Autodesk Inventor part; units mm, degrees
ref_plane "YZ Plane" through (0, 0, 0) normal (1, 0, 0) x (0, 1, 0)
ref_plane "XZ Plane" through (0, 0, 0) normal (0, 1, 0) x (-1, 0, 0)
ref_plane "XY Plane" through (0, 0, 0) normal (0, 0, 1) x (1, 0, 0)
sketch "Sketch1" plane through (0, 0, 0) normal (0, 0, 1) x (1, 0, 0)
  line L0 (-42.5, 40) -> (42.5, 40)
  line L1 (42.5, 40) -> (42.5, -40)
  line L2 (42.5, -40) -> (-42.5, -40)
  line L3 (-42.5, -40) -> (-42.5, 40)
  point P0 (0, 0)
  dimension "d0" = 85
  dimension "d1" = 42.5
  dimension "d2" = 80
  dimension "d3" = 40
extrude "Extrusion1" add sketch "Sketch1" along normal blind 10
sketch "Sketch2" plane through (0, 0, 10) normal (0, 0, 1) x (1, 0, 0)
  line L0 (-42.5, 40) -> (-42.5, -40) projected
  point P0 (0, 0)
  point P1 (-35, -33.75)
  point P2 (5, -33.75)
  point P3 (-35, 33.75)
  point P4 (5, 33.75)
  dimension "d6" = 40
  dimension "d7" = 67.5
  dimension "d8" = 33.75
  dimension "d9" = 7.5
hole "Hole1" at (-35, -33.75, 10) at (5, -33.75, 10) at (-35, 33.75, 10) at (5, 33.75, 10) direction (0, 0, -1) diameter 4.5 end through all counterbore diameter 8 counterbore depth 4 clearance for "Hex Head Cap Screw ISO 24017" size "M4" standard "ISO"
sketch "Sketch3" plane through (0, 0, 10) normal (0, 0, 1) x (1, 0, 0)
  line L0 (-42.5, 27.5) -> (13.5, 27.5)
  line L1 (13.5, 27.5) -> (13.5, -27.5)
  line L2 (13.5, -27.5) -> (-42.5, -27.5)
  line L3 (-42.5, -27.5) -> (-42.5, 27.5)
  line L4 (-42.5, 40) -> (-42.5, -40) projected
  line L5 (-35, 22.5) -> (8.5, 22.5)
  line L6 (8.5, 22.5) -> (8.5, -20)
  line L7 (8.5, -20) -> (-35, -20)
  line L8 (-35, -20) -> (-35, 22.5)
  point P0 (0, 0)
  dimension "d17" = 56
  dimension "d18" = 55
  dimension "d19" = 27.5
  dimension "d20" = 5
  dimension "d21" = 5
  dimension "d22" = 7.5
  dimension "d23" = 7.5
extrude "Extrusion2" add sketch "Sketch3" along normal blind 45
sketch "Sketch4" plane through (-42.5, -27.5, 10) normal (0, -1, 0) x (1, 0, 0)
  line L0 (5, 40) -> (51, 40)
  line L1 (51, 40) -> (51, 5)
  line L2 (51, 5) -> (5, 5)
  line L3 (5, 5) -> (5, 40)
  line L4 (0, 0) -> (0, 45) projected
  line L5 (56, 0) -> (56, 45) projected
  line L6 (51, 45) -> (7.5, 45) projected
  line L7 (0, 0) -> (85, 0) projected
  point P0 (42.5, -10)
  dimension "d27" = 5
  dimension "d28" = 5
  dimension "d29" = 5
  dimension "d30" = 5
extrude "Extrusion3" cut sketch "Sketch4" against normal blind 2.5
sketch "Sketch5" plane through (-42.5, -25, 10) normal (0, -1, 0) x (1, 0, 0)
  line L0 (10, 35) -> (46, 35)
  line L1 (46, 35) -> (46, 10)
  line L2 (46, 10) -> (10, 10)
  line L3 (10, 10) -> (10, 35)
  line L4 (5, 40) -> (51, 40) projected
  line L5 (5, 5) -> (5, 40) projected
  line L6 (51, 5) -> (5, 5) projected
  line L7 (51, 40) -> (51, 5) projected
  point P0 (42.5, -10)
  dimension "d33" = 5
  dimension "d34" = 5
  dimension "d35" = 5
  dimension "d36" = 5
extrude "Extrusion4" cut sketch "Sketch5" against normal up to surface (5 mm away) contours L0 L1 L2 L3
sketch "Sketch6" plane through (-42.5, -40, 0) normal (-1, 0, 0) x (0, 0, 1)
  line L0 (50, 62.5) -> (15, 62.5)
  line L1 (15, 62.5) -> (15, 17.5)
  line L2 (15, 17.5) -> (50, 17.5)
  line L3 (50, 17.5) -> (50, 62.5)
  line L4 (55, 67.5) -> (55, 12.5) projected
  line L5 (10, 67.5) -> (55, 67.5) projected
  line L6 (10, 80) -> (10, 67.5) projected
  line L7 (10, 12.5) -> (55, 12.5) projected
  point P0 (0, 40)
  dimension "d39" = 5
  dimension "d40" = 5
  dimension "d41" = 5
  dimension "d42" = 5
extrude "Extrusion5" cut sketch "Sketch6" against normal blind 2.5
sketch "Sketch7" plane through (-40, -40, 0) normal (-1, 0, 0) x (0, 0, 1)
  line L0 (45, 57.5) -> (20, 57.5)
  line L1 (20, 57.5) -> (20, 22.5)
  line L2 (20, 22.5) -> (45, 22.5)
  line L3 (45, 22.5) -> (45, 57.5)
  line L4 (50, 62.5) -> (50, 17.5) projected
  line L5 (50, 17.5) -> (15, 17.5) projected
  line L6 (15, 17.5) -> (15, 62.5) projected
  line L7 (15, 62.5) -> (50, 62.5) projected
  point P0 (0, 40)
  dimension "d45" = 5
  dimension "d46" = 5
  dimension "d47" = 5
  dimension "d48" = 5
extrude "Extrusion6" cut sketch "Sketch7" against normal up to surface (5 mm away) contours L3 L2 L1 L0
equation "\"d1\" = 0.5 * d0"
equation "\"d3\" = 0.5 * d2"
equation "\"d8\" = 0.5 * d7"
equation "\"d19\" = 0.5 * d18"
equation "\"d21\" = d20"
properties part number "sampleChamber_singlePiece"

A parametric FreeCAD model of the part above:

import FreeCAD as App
import Part
import Sketcher
from FreeCAD import Vector
Q = App.Units.Quantity

doc = App.newDocument("Part")
body = doc.addObject("PartDesign::Body", "Body")

sketch1 = body.newObject("Sketcher::SketchObject", "Sketch")
sketch1.AttachmentSupport = (doc.getObject("XY_Plane"), [""])
sketch1.MapMode = "FlatFace"
sketch1.addGeometry([
    Part.LineSegment(Vector(42, 40, 0), Vector(-42, 40, 0)),
    Part.LineSegment(Vector(-42, 40, 0), Vector(-42, -40, 0)),
    Part.LineSegment(Vector(-42, -40, 0), Vector(42, -40, 0)),
    Part.LineSegment(Vector(42, -40, 0), Vector(42, 40, 0)),
], False)
sketch1.addConstraint([
    Sketcher.Constraint("Coincident", 0, 2, 1, 1),
    Sketcher.Constraint("Coincident", 1, 2, 2, 1),
    Sketcher.Constraint("Coincident", 2, 2, 3, 1),
    Sketcher.Constraint("Coincident", 3, 2, 0, 1),
    Sketcher.Constraint("Horizontal", 0),
    Sketcher.Constraint("Vertical", 1),
    Sketcher.Constraint("Horizontal", 2),
    Sketcher.Constraint("Vertical", 3),
    Sketcher.Constraint("Symmetric", 0, 2, 2, 2, -1, 1),
    Sketcher.Constraint("DistanceX", 0, 2, 0, 1, Q("85 mm")),
    Sketcher.Constraint("DistanceY", 1, 2, 1, 1, Q("80 mm")),
])
pad1 = body.newObject("PartDesign::Pad", "Pad")
pad1.Profile = sketch1
pad1.Length = 10

sketch2 = body.newObject("Sketcher::SketchObject", "Sketch001")
sketch2.AttachmentSupport = (doc.getObject("XY_Plane"), [""])
sketch2.MapMode = "FlatFace"
sketch2.AttachmentOffset = App.Placement(Vector(0, 0, 10), App.Rotation())
sketch2.addGeometry([
    Part.Circle(Vector(-35, -33.8, 0), Vector(0, 0, 1), 2.2),
    Part.Circle(Vector(5, -33.8, 0), Vector(0, 0, 1), 2.2),
    Part.Circle(Vector(-35, 33.8, 0), Vector(0, 0, 1), 2.2),
    Part.Circle(Vector(5, 33.8, 0), Vector(0, 0, 1), 2.2),
], False)
sketch2.addConstraint([
    Sketcher.Constraint("Equal", 0, 1),
    Sketcher.Constraint("Equal", 1, 2),
    Sketcher.Constraint("Equal", 2, 3),
    Sketcher.Constraint("Symmetric", 0, 3, 2, 3, -1),
    Sketcher.Constraint("Symmetric", 1, 3, 3, 3, -1),
    Sketcher.Constraint("Horizontal", 0, 3, 1, 3),
    Sketcher.Constraint("Diameter", 0, Q("4.5 mm")),
    Sketcher.Constraint("DistanceX", 0, 3, -1, 1, Q("35 mm")),
    Sketcher.Constraint("DistanceX", -1, 1, 1, 3, Q("5 mm")),
    Sketcher.Constraint("DistanceY", 0, 3, 2, 3, Q("67.5 mm")),
])
doc.recompute()
hole = body.newObject("PartDesign::Hole", "Hole")
hole.Profile = sketch2
hole.ThreadType = "None"
hole.Diameter = 4.5
hole.DepthType = "ThroughAll"
hole.HoleCutType = "Counterbore"
hole.HoleCutDiameter = 8
hole.HoleCutDepth = 4

sketch3 = body.newObject("Sketcher::SketchObject", "Sketch002")
sketch3.AttachmentSupport = (doc.getObject("XY_Plane"), [""])
sketch3.MapMode = "FlatFace"
sketch3.AttachmentOffset = App.Placement(Vector(0, 0, 10), App.Rotation())
sketch3.addGeometry([
    Part.LineSegment(Vector(14, 28, 0), Vector(-42, 28, 0)),
    Part.LineSegment(Vector(-42, 28, 0), Vector(-42, -28, 0)),
    Part.LineSegment(Vector(-42, -28, 0), Vector(14, -28, 0)),
    Part.LineSegment(Vector(14, -28, 0), Vector(14, 28, 0)),
    Part.LineSegment(Vector(-35, -20, 0), Vector(-35, 22, 0)),
    Part.LineSegment(Vector(-35, 22, 0), Vector(8, 22, 0)),
    Part.LineSegment(Vector(8, 22, 0), Vector(8, -20, 0)),
    Part.LineSegment(Vector(8, -20, 0), Vector(-35, -20, 0)),
], False)
sketch3.addConstraint([
    Sketcher.Constraint("Coincident", 0, 2, 1, 1),
    Sketcher.Constraint("Coincident", 1, 2, 2, 1),
    Sketcher.Constraint("Coincident", 2, 2, 3, 1),
    Sketcher.Constraint("Coincident", 3, 2, 0, 1),
    Sketcher.Constraint("Coincident", 4, 2, 5, 1),
    Sketcher.Constraint("Coincident", 5, 2, 6, 1),
    Sketcher.Constraint("Coincident", 6, 2, 7, 1),
    Sketcher.Constraint("Coincident", 7, 2, 4, 1),
    Sketcher.Constraint("Horizontal", 0),
    Sketcher.Constraint("Vertical", 1),
    Sketcher.Constraint("Horizontal", 2),
    Sketcher.Constraint("Vertical", 3),
    Sketcher.Constraint("Vertical", 4),
    Sketcher.Constraint("Horizontal", 5),
    Sketcher.Constraint("Vertical", 6),
    Sketcher.Constraint("Horizontal", 7),
    Sketcher.Constraint("DistanceX", 0, 2, 0, 1, Q("56 mm")),
    Sketcher.Constraint("DistanceY", 1, 2, 1, 1, Q("55 mm")),
    Sketcher.Constraint("DistanceY", 4, 2, 0, 2, Q("5 mm")),
    Sketcher.Constraint("DistanceX", 5, 2, 3, 2, Q("5 mm")),
    Sketcher.Constraint("DistanceY", -1, 1, 0, 2, Q("27.5 mm")),
    Sketcher.Constraint("DistanceX", 0, 2, 4, 2, Q("7.5 mm")),
    Sketcher.Constraint("DistanceY", 2, 2, 6, 2, Q("7.5 mm")),
    Sketcher.Constraint("DistanceX", 4, 2, -1, 1, Q("35 mm")),
])
pad2 = body.newObject("PartDesign::Pad", "Pad001")
pad2.Profile = sketch3
pad2.Length = 45

sketch4 = body.newObject("Sketcher::SketchObject", "Sketch003")
sketch4.AttachmentSupport = (doc.getObject("XZ_Plane"), [""])
sketch4.MapMode = "FlatFace"
sketch4.AttachmentOffset = App.Placement(Vector(0, 0, 27.5), App.Rotation())
sketch4.addGeometry([
    Part.LineSegment(Vector(8, 50, 0), Vector(-38, 50, 0)),
    Part.LineSegment(Vector(-38, 50, 0), Vector(-38, 15, 0)),
    Part.LineSegment(Vector(-38, 15, 0), Vector(8, 15, 0)),
    Part.LineSegment(Vector(8, 15, 0), Vector(8, 50, 0)),
], False)
sketch4.addConstraint([
    Sketcher.Constraint("Coincident", 0, 2, 1, 1),
    Sketcher.Constraint("Coincident", 1, 2, 2, 1),
    Sketcher.Constraint("Coincident", 2, 2, 3, 1),
    Sketcher.Constraint("Coincident", 3, 2, 0, 1),
    Sketcher.Constraint("Horizontal", 0),
    Sketcher.Constraint("Vertical", 1),
    Sketcher.Constraint("Horizontal", 2),
    Sketcher.Constraint("Vertical", 3),
    Sketcher.Constraint("DistanceX", 0, 2, 0, 1, Q("46 mm")),
    Sketcher.Constraint("DistanceY", 1, 2, 1, 1, Q("35 mm")),
    Sketcher.Constraint("DistanceY", -1, 1, 0, 2, Q("50 mm")),
    Sketcher.Constraint("DistanceX", 0, 2, -1, 1, Q("37.5 mm")),
])
pocket1 = body.newObject("PartDesign::Pocket", "Pocket")
pocket1.Profile = sketch4
pocket1.Length = 2.5

sketch5 = body.newObject("Sketcher::SketchObject", "Sketch004")
sketch5.AttachmentSupport = (doc.getObject("XZ_Plane"), [""])
sketch5.MapMode = "FlatFace"
sketch5.AttachmentOffset = App.Placement(Vector(0, 0, 25), App.Rotation())
sketch5.addGeometry([
    Part.LineSegment(Vector(4, 45, 0), Vector(-32, 45, 0)),
    Part.LineSegment(Vector(-32, 45, 0), Vector(-32, 20, 0)),
    Part.LineSegment(Vector(-32, 20, 0), Vector(4, 20, 0)),
    Part.LineSegment(Vector(4, 20, 0), Vector(4, 45, 0)),
], False)
sketch5.addConstraint([
    Sketcher.Constraint("Coincident", 0, 2, 1, 1),
    Sketcher.Constraint("Coincident", 1, 2, 2, 1),
    Sketcher.Constraint("Coincident", 2, 2, 3, 1),
    Sketcher.Constraint("Coincident", 3, 2, 0, 1),
    Sketcher.Constraint("Horizontal", 0),
    Sketcher.Constraint("Vertical", 1),
    Sketcher.Constraint("Horizontal", 2),
    Sketcher.Constraint("Vertical", 3),
    Sketcher.Constraint("DistanceX", 0, 2, 0, 1, Q("36 mm")),
    Sketcher.Constraint("DistanceY", 1, 2, 1, 1, Q("25 mm")),
    Sketcher.Constraint("DistanceY", -1, 1, 0, 2, Q("45 mm")),
    Sketcher.Constraint("DistanceX", 0, 2, -1, 1, Q("32.5 mm")),
])
pocket2 = body.newObject("PartDesign::Pocket", "Pocket001")
pocket2.Profile = sketch5
pocket2.Length = 5

sketch6 = body.newObject("Sketcher::SketchObject", "Sketch005")
sketch6.AttachmentSupport = (doc.getObject("YZ_Plane"), [""])
sketch6.MapMode = "FlatFace"
sketch6.AttachmentOffset = App.Placement(Vector(0, 0, -42.5), App.Rotation())
sketch6.addGeometry([
    Part.LineSegment(Vector(-22, 50, 0), Vector(22, 50, 0)),
    Part.LineSegment(Vector(22, 50, 0), Vector(22, 15, 0)),
    Part.LineSegment(Vector(22, 15, 0), Vector(-22, 15, 0)),
    Part.LineSegment(Vector(-22, 15, 0), Vector(-22, 50, 0)),
], False)
sketch6.addConstraint([
    Sketcher.Constraint("Coincident", 0, 2, 1, 1),
    Sketcher.Constraint("Coincident", 1, 2, 2, 1),
    Sketcher.Constraint("Coincident", 2, 2, 3, 1),
    Sketcher.Constraint("Coincident", 3, 2, 0, 1),
    Sketcher.Constraint("Horizontal", 0),
    Sketcher.Constraint("Vertical", 1),
    Sketcher.Constraint("Horizontal", 2),
    Sketcher.Constraint("Vertical", 3),
    Sketcher.Constraint("DistanceX", 0, 1, 0, 2, Q("45 mm")),
    Sketcher.Constraint("DistanceY", 1, 2, 1, 1, Q("35 mm")),
    Sketcher.Constraint("DistanceY", -1, 1, 0, 2, Q("50 mm")),
    Sketcher.Constraint("DistanceX", -1, 1, 0, 2, Q("22.5 mm")),
])
pocket3 = body.newObject("PartDesign::Pocket", "Pocket002")
pocket3.Profile = sketch6
pocket3.Length = 2.5
pocket3.Reversed = True

sketch7 = body.newObject("Sketcher::SketchObject", "Sketch006")
sketch7.AttachmentSupport = (doc.getObject("YZ_Plane"), [""])
sketch7.MapMode = "FlatFace"
sketch7.AttachmentOffset = App.Placement(Vector(0, 0, -40), App.Rotation())
sketch7.addGeometry([
    Part.LineSegment(Vector(-18, 45, 0), Vector(18, 45, 0)),
    Part.LineSegment(Vector(18, 45, 0), Vector(18, 20, 0)),
    Part.LineSegment(Vector(18, 20, 0), Vector(-18, 20, 0)),
    Part.LineSegment(Vector(-18, 20, 0), Vector(-18, 45, 0)),
], False)
sketch7.addConstraint([
    Sketcher.Constraint("Coincident", 0, 2, 1, 1),
    Sketcher.Constraint("Coincident", 1, 2, 2, 1),
    Sketcher.Constraint("Coincident", 2, 2, 3, 1),
    Sketcher.Constraint("Coincident", 3, 2, 0, 1),
    Sketcher.Constraint("Horizontal", 0),
    Sketcher.Constraint("Vertical", 1),
    Sketcher.Constraint("Horizontal", 2),
    Sketcher.Constraint("Vertical", 3),
    Sketcher.Constraint("DistanceX", 0, 1, 0, 2, Q("35 mm")),
    Sketcher.Constraint("DistanceY", 1, 2, 1, 1, Q("25 mm")),
    Sketcher.Constraint("DistanceY", -1, 1, 0, 2, Q("45 mm")),
    Sketcher.Constraint("DistanceX", -1, 1, 0, 2, Q("17.5 mm")),
])
pocket4 = body.newObject("PartDesign::Pocket", "Pocket003")
pocket4.Profile = sketch7
pocket4.Length = 5
pocket4.Reversed = True

doc.recompute()
